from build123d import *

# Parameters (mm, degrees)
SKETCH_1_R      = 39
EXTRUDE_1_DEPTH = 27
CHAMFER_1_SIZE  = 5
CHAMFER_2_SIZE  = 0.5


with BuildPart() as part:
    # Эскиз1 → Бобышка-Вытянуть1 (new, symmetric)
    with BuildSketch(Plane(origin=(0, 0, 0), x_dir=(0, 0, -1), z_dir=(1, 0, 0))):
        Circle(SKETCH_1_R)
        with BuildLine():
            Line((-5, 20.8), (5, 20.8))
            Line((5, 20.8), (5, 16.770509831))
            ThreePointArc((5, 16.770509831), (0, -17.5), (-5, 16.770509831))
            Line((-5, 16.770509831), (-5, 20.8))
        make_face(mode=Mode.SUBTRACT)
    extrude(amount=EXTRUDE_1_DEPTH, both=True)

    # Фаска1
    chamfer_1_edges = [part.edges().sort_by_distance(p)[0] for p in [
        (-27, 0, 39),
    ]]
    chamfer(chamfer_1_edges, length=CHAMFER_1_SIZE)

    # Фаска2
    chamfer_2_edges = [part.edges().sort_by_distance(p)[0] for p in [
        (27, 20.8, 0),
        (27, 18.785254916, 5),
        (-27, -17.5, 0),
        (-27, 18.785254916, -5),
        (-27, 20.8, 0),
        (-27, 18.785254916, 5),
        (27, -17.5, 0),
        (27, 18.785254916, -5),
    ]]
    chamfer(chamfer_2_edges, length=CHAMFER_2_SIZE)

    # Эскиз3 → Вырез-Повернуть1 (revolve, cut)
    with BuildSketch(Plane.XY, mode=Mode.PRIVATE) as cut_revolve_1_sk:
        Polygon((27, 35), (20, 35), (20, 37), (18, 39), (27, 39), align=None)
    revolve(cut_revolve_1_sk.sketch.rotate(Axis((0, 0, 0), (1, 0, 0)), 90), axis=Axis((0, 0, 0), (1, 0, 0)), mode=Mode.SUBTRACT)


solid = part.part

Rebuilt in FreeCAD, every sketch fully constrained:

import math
import FreeCAD as App
import Part
import Sketcher


def edges_at(feature, points):
    """Names of the edges that pass closest to the given points."""
    edges = feature.Shape.Edges
    near = lambda p: min(range(len(edges)), key=lambda i: edges[i].distToShape(Part.Vertex(*p))[0])
    return sorted({f"Edge{near(p) + 1}" for p in points})


def add_polygon(sketch, points):
    """Adds a closed chain of lines whose ends are joined by coincident constraints."""
    first, n = sketch.GeometryCount, len(points)
    for a, b in zip(points, points[1:] + points[:1]):
        sketch.addGeometry(Part.LineSegment(App.Vector(*a, 0), App.Vector(*b, 0)), False)
    for i in range(n):
        sketch.addConstraint(Sketcher.Constraint("Coincident", first + i, 2, first + (i + 1) % n, 1))

doc = App.newDocument("Part")
params = doc.addObject("Spreadsheet::Sheet", "Params")
for row, (alias, value) in enumerate([
    ("sketch1_diameter", "78 mm"),
    ("sketch1_radius", "17.5 mm"),
    ("sketch1_height", "10 mm"),
    ("pad1_length", "54 mm"),
    ("chamfer_size", "5 mm"),
    ("chamfer2_size", "0.5 mm"),
    ("sketch2_width", "7 mm"),
    ("sketch2_width2", "9 mm"),
    ("sketch2_height", "4 mm"),
    ("sketch2_height2", "2 mm"),
    ("groove_angle", "360 deg"),
], start=1):
    params.set(f"A{row}", alias)
    params.set(f"B{row}", "=" + value)
    params.setAlias(f"B{row}", alias)

body = doc.addObject("PartDesign::Body", "Body")

sketch1 = body.newObject("Sketcher::SketchObject", "Sketch")
sketch1.AttachmentSupport = (doc.getObject("YZ_Plane"), [""])
sketch1.MapMode = "FlatFace"
sketch1.addGeometry(Part.Circle(App.Vector(0, 0, 0), App.Vector(0, 0, 1), 39), False)
sketch1.addGeometry(Part.LineSegment(App.Vector(16.8, 5, 0), App.Vector(20.8, 5, 0)), False)
sketch1.addGeometry(Part.LineSegment(App.Vector(20.8, 5, 0), App.Vector(20.8, -5, 0)), False)
sketch1.addGeometry(Part.LineSegment(App.Vector(20.8, -5, 0), App.Vector(16.8, -5, 0)), False)
sketch1.addGeometry(Part.ArcOfCircle(Part.Circle(App.Vector(0, 0, 0), App.Vector(0, 0, 1), 17.5), math.radians(17), math.radians(343)), False)
sketch1.addConstraint(Sketcher.Constraint("Coincident", 1, 2, 2, 1))
sketch1.addConstraint(Sketcher.Constraint("Coincident", 2, 2, 3, 1))
sketch1.addConstraint(Sketcher.Constraint("Coincident", 3, 2, 4, 2))
sketch1.addConstraint(Sketcher.Constraint("Coincident", 4, 1, 1, 1))
sketch1.addConstraint(Sketcher.Constraint("Horizontal", 1))
sketch1.addConstraint(Sketcher.Constraint("Vertical", 2))
sketch1.addConstraint(Sketcher.Constraint("Horizontal", 3))
sketch1.addConstraint(Sketcher.Constraint("Coincident", 0, 3, -1, 1))
sketch1.addConstraint(Sketcher.Constraint("Coincident", 4, 3, -1, 1))
sketch1.addConstraint(Sketcher.Constraint("Vertical", 3, 2, 4, 1))
sketch1.addConstraint(Sketcher.Constraint("Diameter", 0, 78.0))
sketch1.addConstraint(Sketcher.Constraint("Radius", 4, 17.5))
sketch1.addConstraint(Sketcher.Constraint("DistanceY", 2, 2, 2, 1, 10.0))
sketch1.addConstraint(Sketcher.Constraint("DistanceX", -1, 1, 1, 2, 20.8))
sketch1.setExpression("Constraints[10]", "Params.sketch1_diameter")
sketch1.setExpression("Constraints[11]", "Params.sketch1_radius")
sketch1.setExpression("Constraints[12]", "Params.sketch1_height")
pad1 = body.newObject("PartDesign::Pad", "Pad")
pad1.Profile = sketch1
pad1.setExpression("Length", "Params.pad1_length")
pad1.Midplane = True
doc.recompute()

chamfer = body.newObject("PartDesign::Chamfer", "Chamfer")
chamfer.Base = (pad1, edges_at(pad1, [(-27, 0, 39)]))
chamfer.setExpression("Size", "Params.chamfer_size")
doc.recompute()

chamfer2 = body.newObject("PartDesign::Chamfer", "Chamfer001")
chamfer2.Base = (chamfer, edges_at(chamfer, [
    (27, 20.8, 0),
    (27, 18.785, 5),
    (-27, -17.5, 0),
    (-27, 18.785, -5),
    (-27, 20.8, 0),
    (-27, 18.785, 5),
    (27, -17.5, 0),
    (27, 18.785, -5),
]))
chamfer2.setExpression("Size", "Params.chamfer2_size")

sketch2 = body.newObject("Sketcher::SketchObject", "Sketch001")
sketch2.AttachmentSupport = (doc.getObject("XY_Plane"), [""])
sketch2.MapMode = "FlatFace"
add_polygon(sketch2, [(20, 35), (27, 35), (27, 39), (18, 39), (20, 37)])
sketch2.addConstraint(Sketcher.Constraint("Horizontal", 0))
sketch2.addConstraint(Sketcher.Constraint("Vertical", 1))
sketch2.addConstraint(Sketcher.Constraint("Horizontal", 2))
sketch2.addConstraint(Sketcher.Constraint("Vertical", 4))
sketch2.addConstraint(Sketcher.Constraint("DistanceX", 0, 1, 0, 2, 7.0))
sketch2.addConstraint(Sketcher.Constraint("DistanceX", 2, 2, 2, 1, 9.0))
sketch2.addConstraint(Sketcher.Constraint("DistanceY", 1, 1, 1, 2, 4.0))
sketch2.addConstraint(Sketcher.Constraint("DistanceY", 4, 2, 4, 1, 2.0))
sketch2.addConstraint(Sketcher.Constraint("DistanceX", -1, 1, 0, 2, 27.0))
sketch2.addConstraint(Sketcher.Constraint("DistanceY", -1, 1, 0, 2, 35.0))
sketch2.setExpression("Constraints[9]", "Params.sketch2_width")
sketch2.setExpression("Constraints[10]", "Params.sketch2_width2")
sketch2.setExpression("Constraints[11]", "Params.sketch2_height")
sketch2.setExpression("Constraints[12]", "Params.sketch2_height2")
groove = body.newObject("PartDesign::Groove", "Groove")
groove.Profile = sketch2
groove.ReferenceAxis = (sketch2, ["H_Axis"])
groove.setExpression("Angle", "Params.groove_angle")

doc.recompute()
